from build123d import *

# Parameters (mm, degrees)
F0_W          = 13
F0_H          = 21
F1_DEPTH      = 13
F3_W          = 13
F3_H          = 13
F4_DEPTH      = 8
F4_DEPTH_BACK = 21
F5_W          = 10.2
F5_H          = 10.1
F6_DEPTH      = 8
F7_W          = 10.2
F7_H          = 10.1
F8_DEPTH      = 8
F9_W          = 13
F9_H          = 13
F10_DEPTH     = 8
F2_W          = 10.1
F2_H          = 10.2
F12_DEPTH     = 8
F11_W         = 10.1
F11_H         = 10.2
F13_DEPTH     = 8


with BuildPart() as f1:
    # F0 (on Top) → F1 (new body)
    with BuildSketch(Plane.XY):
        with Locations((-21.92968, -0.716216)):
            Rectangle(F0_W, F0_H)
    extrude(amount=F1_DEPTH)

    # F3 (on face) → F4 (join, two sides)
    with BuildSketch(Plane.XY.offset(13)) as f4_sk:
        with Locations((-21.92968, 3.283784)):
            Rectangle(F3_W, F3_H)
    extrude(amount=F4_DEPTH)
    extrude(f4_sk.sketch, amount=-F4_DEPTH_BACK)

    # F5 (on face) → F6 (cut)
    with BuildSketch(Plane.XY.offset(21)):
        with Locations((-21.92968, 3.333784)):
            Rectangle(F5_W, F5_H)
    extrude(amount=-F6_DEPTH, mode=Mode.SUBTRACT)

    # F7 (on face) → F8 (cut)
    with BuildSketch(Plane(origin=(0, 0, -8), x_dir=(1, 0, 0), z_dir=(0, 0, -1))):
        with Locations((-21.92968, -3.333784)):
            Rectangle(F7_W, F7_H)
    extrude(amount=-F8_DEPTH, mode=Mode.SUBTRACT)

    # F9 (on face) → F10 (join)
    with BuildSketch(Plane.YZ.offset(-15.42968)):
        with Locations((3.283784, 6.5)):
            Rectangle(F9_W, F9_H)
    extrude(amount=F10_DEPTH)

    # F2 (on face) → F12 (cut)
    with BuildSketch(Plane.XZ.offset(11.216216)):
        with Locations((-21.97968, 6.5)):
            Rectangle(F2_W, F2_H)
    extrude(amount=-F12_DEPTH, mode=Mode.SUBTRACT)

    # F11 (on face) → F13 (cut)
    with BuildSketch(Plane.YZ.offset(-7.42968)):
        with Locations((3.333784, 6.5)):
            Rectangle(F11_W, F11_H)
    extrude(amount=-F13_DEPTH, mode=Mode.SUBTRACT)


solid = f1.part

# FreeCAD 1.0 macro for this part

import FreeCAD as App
import Part
import Sketcher
from FreeCAD import Vector

doc = App.newDocument("Part")
body = doc.addObject("PartDesign::Body", "Body")

sketch1 = body.newObject("Sketcher::SketchObject", "Sketch")
sketch1.AttachmentSupport = (doc.getObject("XY_Plane"), [""])
sketch1.MapMode = "FlatFace"
sketch1.addGeometry([
    Part.LineSegment(Vector(-28.42968, 9.783784, 0), Vector(-28.42968, -11.216216, 0)),
    Part.LineSegment(Vector(-28.42968, -11.216216, 0), Vector(-15.42968, -11.216216, 0)),
    Part.LineSegment(Vector(-15.42968, -11.216216, 0), Vector(-15.42968, 9.783784, 0)),
    Part.LineSegment(Vector(-15.42968, 9.783784, 0), Vector(-28.42968, 9.783784, 0)),
], False)
sketch1.addConstraint([
    Sketcher.Constraint("Coincident", 0, 2, 1, 1),
    Sketcher.Constraint("Coincident", 1, 2, 2, 1),
    Sketcher.Constraint("Coincident", 2, 2, 3, 1),
    Sketcher.Constraint("Coincident", 3, 2, 0, 1),
    Sketcher.Constraint("Vertical", 0),
    Sketcher.Constraint("Horizontal", 1),
    Sketcher.Constraint("Vertical", 2),
    Sketcher.Constraint("Horizontal", 3),
    Sketcher.Constraint("DistanceX", 1, 1, 1, 2, 13.0),
    Sketcher.Constraint("DistanceY", 0, 2, 0, 1, 21.0),
    Sketcher.Constraint("DistanceX", 0, 2, -1, 1, 28.42968),
    Sketcher.Constraint("DistanceY", 0, 2, -1, 1, 11.216216),
])
pad1 = body.newObject("PartDesign::Pad", "Pad")
pad1.Profile = sketch1
pad1.Length = 13

sketch2 = body.newObject("Sketcher::SketchObject", "Sketch001")
sketch2.AttachmentSupport = (doc.getObject("XY_Plane"), [""])
sketch2.MapMode = "FlatFace"
sketch2.AttachmentOffset = App.Placement(Vector(0, 0, 13), App.Rotation())
sketch2.addGeometry([
    Part.LineSegment(Vector(-28.42968, 9.783784, 0), Vector(-28.42968, -3.216216, 0)),
    Part.LineSegment(Vector(-28.42968, -3.216216, 0), Vector(-15.42968, -3.216216, 0)),
    Part.LineSegment(Vector(-15.42968, -3.216216, 0), Vector(-15.42968, 9.783784, 0)),
    Part.LineSegment(Vector(-15.42968, 9.783784, 0), Vector(-28.42968, 9.783784, 0)),
], False)
sketch2.addConstraint([
    Sketcher.Constraint("Coincident", 0, 2, 1, 1),
    Sketcher.Constraint("Coincident", 1, 2, 2, 1),
    Sketcher.Constraint("Coincident", 2, 2, 3, 1),
    Sketcher.Constraint("Coincident", 3, 2, 0, 1),
    Sketcher.Constraint("Vertical", 0),
    Sketcher.Constraint("Horizontal", 1),
    Sketcher.Constraint("Vertical", 2),
    Sketcher.Constraint("Horizontal", 3),
    Sketcher.Constraint("Equal", 3, 0),
    Sketcher.Constraint("DistanceX", 1, 1, 1, 2, 13.0),
    Sketcher.Constraint("DistanceX", 0, 2, -1, 1, 28.42968),
    Sketcher.Constraint("DistanceY", 0, 2, -1, 1, 3.216216),
])
pad2 = body.newObject("PartDesign::Pad", "Pad001")
pad2.Profile = sketch2
pad2.Type = "TwoLengths"
pad2.Length = 8
pad2.Length2 = 21

sketch3 = body.newObject("Sketcher::SketchObject", "Sketch002")
sketch3.AttachmentSupport = (doc.getObject("XY_Plane"), [""])
sketch3.MapMode = "FlatFace"
sketch3.AttachmentOffset = App.Placement(Vector(0, 0, 21), App.Rotation())
sketch3.addGeometry([
    Part.LineSegment(Vector(-27.02968, 8.383784, 0), Vector(-27.02968, -1.716216, 0)),
    Part.LineSegment(Vector(-27.02968, -1.716216, 0), Vector(-16.82968, -1.716216, 0)),
    Part.LineSegment(Vector(-16.82968, -1.716216, 0), Vector(-16.82968, 8.383784, 0)),
    Part.LineSegment(Vector(-16.82968, 8.383784, 0), Vector(-27.02968, 8.383784, 0)),
], False)
sketch3.addConstraint([
    Sketcher.Constraint("Coincident", 0, 2, 1, 1),
    Sketcher.Constraint("Coincident", 1, 2, 2, 1),
    Sketcher.Constraint("Coincident", 2, 2, 3, 1),
    Sketcher.Constraint("Coincident", 3, 2, 0, 1),
    Sketcher.Constraint("Vertical", 0),
    Sketcher.Constraint("Horizontal", 1),
    Sketcher.Constraint("Vertical", 2),
    Sketcher.Constraint("Horizontal", 3),
    Sketcher.Constraint("DistanceX", 1, 1, 1, 2, 10.2),
    Sketcher.Constraint("DistanceY", 0, 2, 0, 1, 10.1),
    Sketcher.Constraint("DistanceX", 0, 2, -1, 1, 27.02968),
    Sketcher.Constraint("DistanceY", 0, 2, -1, 1, 1.716216),
])
pocket1 = body.newObject("PartDesign::Pocket", "Pocket")
pocket1.Profile = sketch3
pocket1.Length = 8

sketch4 = body.newObject("Sketcher::SketchObject", "Sketch003")
sketch4.AttachmentSupport = (doc.getObject("XY_Plane"), [""])
sketch4.MapMode = "FlatFace"
sketch4.AttachmentOffset = App.Placement(Vector(0, 0, -8), App.Rotation())
sketch4.addGeometry([
    Part.LineSegment(Vector(-27.02968, -1.716216, 0), Vector(-27.02968, 8.383784, 0)),
    Part.LineSegment(Vector(-27.02968, 8.383784, 0), Vector(-16.82968, 8.383784, 0)),
    Part.LineSegment(Vector(-16.82968, 8.383784, 0), Vector(-16.82968, -1.716216, 0)),
    Part.LineSegment(Vector(-16.82968, -1.716216, 0), Vector(-27.02968, -1.716216, 0)),
], False)
sketch4.addConstraint([
    Sketcher.Constraint("Coincident", 0, 2, 1, 1),
    Sketcher.Constraint("Coincident", 1, 2, 2, 1),
    Sketcher.Constraint("Coincident", 2, 2, 3, 1),
    Sketcher.Constraint("Coincident", 3, 2, 0, 1),
    Sketcher.Constraint("Vertical", 0),
    Sketcher.Constraint("Horizontal", 1),
    Sketcher.Constraint("Vertical", 2),
    Sketcher.Constraint("Horizontal", 3),
    Sketcher.Constraint("DistanceX", 1, 1, 1, 2, 10.2),
    Sketcher.Constraint("DistanceY", 0, 1, 0, 2, 10.1),
    Sketcher.Constraint("DistanceX", 0, 2, -1, 1, 27.02968),
    Sketcher.Constraint("DistanceY", -1, 1, 0, 2, 8.383784),
])
pocket2 = body.newObject("PartDesign::Pocket", "Pocket001")
pocket2.Profile = sketch4
pocket2.Length = 8
pocket2.Reversed = True

sketch5 = body.newObject("Sketcher::SketchObject", "Sketch004")
sketch5.AttachmentSupport = (doc.getObject("YZ_Plane"), [""])
sketch5.MapMode = "FlatFace"
sketch5.AttachmentOffset = App.Placement(Vector(0, 0, -15.42968), App.Rotation())
sketch5.addGeometry([
    Part.LineSegment(Vector(-3.216216, 13, 0), Vector(-3.216216, 0, 0)),
    Part.LineSegment(Vector(-3.216216, 0, 0), Vector(9.783784, 0, 0)),
    Part.LineSegment(Vector(9.783784, 0, 0), Vector(9.783784, 13, 0)),
    Part.LineSegment(Vector(9.783784, 13, 0), Vector(-3.216216, 13, 0)),
], False)
sketch5.addConstraint([
    Sketcher.Constraint("Coincident", 0, 2, 1, 1),
    Sketcher.Constraint("Coincident", 1, 2, 2, 1),
    Sketcher.Constraint("Coincident", 2, 2, 3, 1),
    Sketcher.Constraint("Coincident", 3, 2, 0, 1),
    Sketcher.Constraint("Vertical", 0),
    Sketcher.Constraint("Horizontal", 1),
    Sketcher.Constraint("Vertical", 2),
    Sketcher.Constraint("Horizontal", 3),
    Sketcher.Constraint("PointOnObject", 0, 2, -1),
    Sketcher.Constraint("Equal", 3, 0),
    Sketcher.Constraint("DistanceX", 1, 1, 1, 2, 13.0),
    Sketcher.Constraint("DistanceX", 0, 2, -1, 1, 3.216216),
])
pad3 = body.newObject("PartDesign::Pad", "Pad002")
pad3.Profile = sketch5
pad3.Length = 8

sketch6 = body.newObject("Sketcher::SketchObject", "Sketch005")
sketch6.AttachmentSupport = (doc.getObject("XZ_Plane"), [""])
sketch6.MapMode = "FlatFace"
sketch6.AttachmentOffset = App.Placement(Vector(0, 0, 11.216216), App.Rotation())
sketch6.addGeometry([
    Part.LineSegment(Vector(-27.02968, 11.6, 0), Vector(-27.02968, 1.4, 0)),
    Part.LineSegment(Vector(-27.02968, 1.4, 0), Vector(-16.92968, 1.4, 0)),
    Part.LineSegment(Vector(-16.92968, 1.4, 0), Vector(-16.92968, 11.6, 0)),
    Part.LineSegment(Vector(-16.92968, 11.6, 0), Vector(-27.02968, 11.6, 0)),
], False)
sketch6.addConstraint([
    Sketcher.Constraint("Coincident", 0, 2, 1, 1),
    Sketcher.Constraint("Coincident", 1, 2, 2, 1),
    Sketcher.Constraint("Coincident", 2, 2, 3, 1),
    Sketcher.Constraint("Coincident", 3, 2, 0, 1),
    Sketcher.Constraint("Vertical", 0),
    Sketcher.Constraint("Horizontal", 1),
    Sketcher.Constraint("Vertical", 2),
    Sketcher.Constraint("Horizontal", 3),
    Sketcher.Constraint("DistanceX", 1, 1, 1, 2, 10.1),
    Sketcher.Constraint("DistanceY", 0, 2, 0, 1, 10.2),
    Sketcher.Constraint("DistanceY", -1, 1, 0, 2, 1.4),
    Sketcher.Constraint("DistanceX", 0, 2, -1, 1, 27.02968),
])
pocket3 = body.newObject("PartDesign::Pocket", "Pocket002")
pocket3.Profile = sketch6
pocket3.Length = 8

sketch7 = body.newObject("Sketcher::SketchObject", "Sketch006")
sketch7.AttachmentSupport = (doc.getObject("YZ_Plane"), [""])
sketch7.MapMode = "FlatFace"
sketch7.AttachmentOffset = App.Placement(Vector(0, 0, -7.42968), App.Rotation())
sketch7.addGeometry([
    Part.LineSegment(Vector(-1.716216, 11.6, 0), Vector(-1.716216, 1.4, 0)),
    Part.LineSegment(Vector(-1.716216, 1.4, 0), Vector(8.383784, 1.4, 0)),
    Part.LineSegment(Vector(8.383784, 1.4, 0), Vector(8.383784, 11.6, 0)),
    Part.LineSegment(Vector(8.383784, 11.6, 0), Vector(-1.716216, 11.6, 0)),
], False)
sketch7.addConstraint([
    Sketcher.Constraint("Coincident", 0, 2, 1, 1),
    Sketcher.Constraint("Coincident", 1, 2, 2, 1),
    Sketcher.Constraint("Coincident", 2, 2, 3, 1),
    Sketcher.Constraint("Coincident", 3, 2, 0, 1),
    Sketcher.Constraint("Vertical", 0),
    Sketcher.Constraint("Horizontal", 1),
    Sketcher.Constraint("Vertical", 2),
    Sketcher.Constraint("Horizontal", 3),
    Sketcher.Constraint("DistanceX", 1, 1, 1, 2, 10.1),
    Sketcher.Constraint("DistanceY", 0, 2, 0, 1, 10.2),
    Sketcher.Constraint("DistanceY", -1, 1, 0, 2, 1.4),
    Sketcher.Constraint("DistanceX", 0, 2, -1, 1, 1.716216),
])
pocket4 = body.newObject("PartDesign::Pocket", "Pocket003")
pocket4.Profile = sketch7
pocket4.Length = 8

doc.recompute()
